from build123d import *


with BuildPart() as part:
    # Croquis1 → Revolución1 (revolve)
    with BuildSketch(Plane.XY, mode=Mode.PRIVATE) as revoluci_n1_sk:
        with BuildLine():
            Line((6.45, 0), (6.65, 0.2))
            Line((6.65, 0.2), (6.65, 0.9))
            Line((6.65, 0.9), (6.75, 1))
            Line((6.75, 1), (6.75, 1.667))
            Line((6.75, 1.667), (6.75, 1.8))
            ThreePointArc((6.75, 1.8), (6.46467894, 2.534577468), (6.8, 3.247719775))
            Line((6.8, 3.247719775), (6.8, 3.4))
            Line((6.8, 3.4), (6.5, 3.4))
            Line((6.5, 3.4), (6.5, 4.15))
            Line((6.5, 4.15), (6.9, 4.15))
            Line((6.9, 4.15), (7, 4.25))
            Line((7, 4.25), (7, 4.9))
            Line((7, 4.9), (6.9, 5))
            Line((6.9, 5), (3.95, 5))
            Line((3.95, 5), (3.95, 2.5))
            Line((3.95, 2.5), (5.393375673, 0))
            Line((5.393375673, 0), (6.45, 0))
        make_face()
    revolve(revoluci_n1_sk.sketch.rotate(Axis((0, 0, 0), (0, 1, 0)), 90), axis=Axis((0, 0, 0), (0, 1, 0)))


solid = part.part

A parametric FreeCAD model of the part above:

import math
import FreeCAD as App
import Part
import Sketcher
from FreeCAD import Vector
Q = App.Units.Quantity

doc = App.newDocument("Part")
body = doc.addObject("PartDesign::Body", "Body")

# Sketch on XY plane
sketch1 = body.newObject("Sketcher::SketchObject", "Sketch")
sketch1.AttachmentSupport = (doc.getObject("XY_Plane"), [""])
sketch1.MapMode = "FlatFace"
sketch1.addGeometry([
    Part.LineSegment(Vector(6.45, 0, 0), Vector(6.65, 0.2, 0)),  # 0
    Part.LineSegment(Vector(6.65, 0.2, 0), Vector(6.65, 0.9, 0)),  # 1
    Part.LineSegment(Vector(6.65, 0.9, 0), Vector(6.75, 1, 0)),  # 2
    Part.LineSegment(Vector(6.75, 1, 0), Vector(6.75, 1.8, 0)),  # 3
    Part.ArcOfCircle(Part.Circle(Vector(7.46, 2.5, 0), Vector(0, 0, 1), 1), math.radians(132), math.radians(224)),  # 4
    Part.LineSegment(Vector(6.8, 3.25, 0), Vector(6.8, 3.4, 0)),  # 5
    Part.LineSegment(Vector(6.8, 3.4, 0), Vector(6.5, 3.4, 0)),  # 6
    Part.LineSegment(Vector(6.5, 3.4, 0), Vector(6.5, 4.15, 0)),  # 7
    Part.LineSegment(Vector(6.5, 4.15, 0), Vector(6.9, 4.15, 0)),  # 8
    Part.LineSegment(Vector(6.9, 4.15, 0), Vector(7, 4.25, 0)),  # 9
    Part.LineSegment(Vector(7, 4.25, 0), Vector(7, 4.9, 0)),  # 10
    Part.LineSegment(Vector(7, 4.9, 0), Vector(6.9, 5, 0)),  # 11
    Part.LineSegment(Vector(6.9, 5, 0), Vector(3.95, 5, 0)),  # 12
    Part.LineSegment(Vector(3.95, 5, 0), Vector(3.95, 2.5, 0)),  # 13
    Part.LineSegment(Vector(3.95, 2.5, 0), Vector(5.39, 0, 0)),  # 14
    Part.LineSegment(Vector(5.39, 0, 0), Vector(6.45, 0, 0)),  # 15
], False)
sketch1.addConstraint([
    Sketcher.Constraint("Coincident", 0, 2, 1, 1),
    Sketcher.Constraint("Coincident", 1, 2, 2, 1),
    Sketcher.Constraint("Coincident", 2, 2, 3, 1),
    Sketcher.Constraint("Coincident", 3, 2, 4, 2),
    Sketcher.Constraint("Coincident", 4, 1, 5, 1),
    Sketcher.Constraint("Coincident", 5, 2, 6, 1),
    Sketcher.Constraint("Coincident", 6, 2, 7, 1),
    Sketcher.Constraint("Coincident", 7, 2, 8, 1),
    Sketcher.Constraint("Coincident", 8, 2, 9, 1),
    Sketcher.Constraint("Coincident", 9, 2, 10, 1),
    Sketcher.Constraint("Coincident", 10, 2, 11, 1),
    Sketcher.Constraint("Coincident", 11, 2, 12, 1),
    Sketcher.Constraint("Coincident", 12, 2, 13, 1),
    Sketcher.Constraint("Coincident", 13, 2, 14, 1),
    Sketcher.Constraint("Coincident", 14, 2, 15, 1),
    Sketcher.Constraint("Coincident", 15, 2, 0, 1),
    Sketcher.Constraint("Vertical", 1),
    Sketcher.Constraint("Vertical", 3),
    Sketcher.Constraint("Vertical", 5),
    Sketcher.Constraint("Horizontal", 6),
    Sketcher.Constraint("Vertical", 7),
    Sketcher.Constraint("Horizontal", 8),
    Sketcher.Constraint("Vertical", 10),
    Sketcher.Constraint("Horizontal", 12),
    Sketcher.Constraint("Vertical", 13),
    Sketcher.Constraint("Horizontal", 15),
    Sketcher.Constraint("PointOnObject", 14, 2, -1),
    Sketcher.Constraint("Parallel", 0, 2),
    Sketcher.Constraint("Parallel", 2, 9),
    Sketcher.Constraint("Perpendicular", 9, 11),
    Sketcher.Constraint("Vertical", 8, 2, 11, 2),
    Sketcher.Constraint("Equal", 2, 9),
    Sketcher.Constraint("Equal", 9, 11),
    Sketcher.Constraint("Radius", 4, Q("1 mm")),
    Sketcher.Constraint("Angle", 14, Q("-60 deg")),
    Sketcher.Constraint("DistanceX", 6, 2, 6, 1, Q("0.3 mm")),
    Sketcher.Constraint("DistanceX", 8, 1, 8, 2, Q("0.4 mm")),
    Sketcher.Constraint("DistanceY", 1, 1, 1, 2, Q("0.7 mm")),
    Sketcher.Constraint("DistanceY", 3, 1, 3, 2, Q("0.8 mm")),
    Sketcher.Constraint("DistanceY", 13, 2, 13, 1, Q("2.5 mm")),
    Sketcher.Constraint("DistanceY", -1, 1, 2, 2, Q("1 mm")),
    Sketcher.Constraint("DistanceX", -1, 1, 9, 2, Q("7 mm")),
    Sketcher.Constraint("DistanceY", -1, 1, 11, 2, Q("5 mm")),
    Sketcher.Constraint("DistanceX", 12, 2, 12, 1, Q("2.95 mm")),
    Sketcher.Constraint("DistanceY", 7, 1, 7, 2, Q("0.75 mm")),
    Sketcher.Constraint("DistanceY", 10, 1, 10, 2, Q("0.65 mm")),
    Sketcher.Constraint("DistanceY", -1, 1, 0, 2, Q("0.2 mm")),
    Sketcher.Constraint("DistanceX", 13, 2, 3, 2, Q("2.8 mm")),
    Sketcher.Constraint("DistanceY", 5, 1, 5, 2, Q("0.15228 mm")),
])
revolution = body.newObject("PartDesign::Revolution", "Revolution")
revolution.Profile = sketch1
revolution.ReferenceAxis = (sketch1, ["V_Axis"])
revolution.Angle = 360

doc.recompute()
